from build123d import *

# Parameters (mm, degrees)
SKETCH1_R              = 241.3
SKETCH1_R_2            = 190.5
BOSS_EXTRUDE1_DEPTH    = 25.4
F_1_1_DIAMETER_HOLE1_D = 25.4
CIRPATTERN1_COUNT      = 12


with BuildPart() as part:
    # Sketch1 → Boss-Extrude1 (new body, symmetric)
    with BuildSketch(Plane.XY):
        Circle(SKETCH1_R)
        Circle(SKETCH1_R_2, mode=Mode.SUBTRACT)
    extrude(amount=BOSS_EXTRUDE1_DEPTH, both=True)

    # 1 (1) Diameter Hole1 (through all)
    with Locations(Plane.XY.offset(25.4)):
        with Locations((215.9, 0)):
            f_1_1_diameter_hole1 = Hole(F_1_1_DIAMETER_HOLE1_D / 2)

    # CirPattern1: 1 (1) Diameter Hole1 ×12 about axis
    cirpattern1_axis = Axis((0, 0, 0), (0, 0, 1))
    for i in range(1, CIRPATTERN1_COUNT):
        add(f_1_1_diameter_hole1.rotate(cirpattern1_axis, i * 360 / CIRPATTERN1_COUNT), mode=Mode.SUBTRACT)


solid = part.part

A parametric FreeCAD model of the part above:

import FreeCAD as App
import Part
import Sketcher
from FreeCAD import Vector
Q = App.Units.Quantity

doc = App.newDocument("Part")
body = doc.addObject("PartDesign::Body", "Body")

sketch1 = doc.addObject("Sketcher::SketchObject", "Sketch")
body.addObject(sketch1)
sketch1.AttachmentSupport = (doc.XY_Plane, [""])
sketch1.MapMode = "FlatFace"
sketch1.addGeometry([
    Part.Circle(Vector(0, 0, 0), Vector(0, 0, 1), 241.3),
    Part.Circle(Vector(0, 0, 0), Vector(0, 0, 1), 190.5),
], False)
sketch1.addConstraint([
    Sketcher.Constraint("Coincident", 0, 3, -1, 1),
    Sketcher.Constraint("Coincident", 1, 3, -1, 1),
    Sketcher.Constraint("Diameter", 0, Q("19 in")),
    Sketcher.Constraint("Diameter", 1, Q("15 in")),
])
pad1 = doc.addObject("PartDesign::Pad", "Pad")
body.addObject(pad1)
pad1.Profile = sketch1
pad1.Length = Q("2 in")
pad1.Midplane = True

sketch2 = doc.addObject("Sketcher::SketchObject", "Sketch001")
body.addObject(sketch2)
sketch2.AttachmentSupport = (doc.XY_Plane, [""])
sketch2.MapMode = "FlatFace"
sketch2.AttachmentOffset = App.Placement(Vector(0, 0, 1 * 25.4), App.Rotation())
sketch2.addGeometry(Part.Circle(Vector(215.9, 0, 0), Vector(0, 0, 1), 12.7), False)
sketch2.addConstraint([
    Sketcher.Constraint("PointOnObject", 0, 3, -1),
    Sketcher.Constraint("Diameter", 0, Q("1 in")),
    Sketcher.Constraint("DistanceX", -1, 1, 0, 3, Q("8.5 in")),
])
doc.recompute()
hole = doc.addObject("PartDesign::Hole", "Hole")
body.addObject(hole)
hole.Profile = sketch2
hole.ThreadType = "None"
hole.Diameter = Q("1 in")
hole.DepthType = "ThroughAll"
doc.recompute()

polarpattern = doc.addObject("PartDesign::PolarPattern", "PolarPattern")
body.addObject(polarpattern)
polarpattern.Originals = [hole]
polarpattern.Axis = (doc.Z_Axis, [""])
polarpattern.Angle = 360
polarpattern.Occurrences = 12
body.Tip = polarpattern

doc.recompute()
